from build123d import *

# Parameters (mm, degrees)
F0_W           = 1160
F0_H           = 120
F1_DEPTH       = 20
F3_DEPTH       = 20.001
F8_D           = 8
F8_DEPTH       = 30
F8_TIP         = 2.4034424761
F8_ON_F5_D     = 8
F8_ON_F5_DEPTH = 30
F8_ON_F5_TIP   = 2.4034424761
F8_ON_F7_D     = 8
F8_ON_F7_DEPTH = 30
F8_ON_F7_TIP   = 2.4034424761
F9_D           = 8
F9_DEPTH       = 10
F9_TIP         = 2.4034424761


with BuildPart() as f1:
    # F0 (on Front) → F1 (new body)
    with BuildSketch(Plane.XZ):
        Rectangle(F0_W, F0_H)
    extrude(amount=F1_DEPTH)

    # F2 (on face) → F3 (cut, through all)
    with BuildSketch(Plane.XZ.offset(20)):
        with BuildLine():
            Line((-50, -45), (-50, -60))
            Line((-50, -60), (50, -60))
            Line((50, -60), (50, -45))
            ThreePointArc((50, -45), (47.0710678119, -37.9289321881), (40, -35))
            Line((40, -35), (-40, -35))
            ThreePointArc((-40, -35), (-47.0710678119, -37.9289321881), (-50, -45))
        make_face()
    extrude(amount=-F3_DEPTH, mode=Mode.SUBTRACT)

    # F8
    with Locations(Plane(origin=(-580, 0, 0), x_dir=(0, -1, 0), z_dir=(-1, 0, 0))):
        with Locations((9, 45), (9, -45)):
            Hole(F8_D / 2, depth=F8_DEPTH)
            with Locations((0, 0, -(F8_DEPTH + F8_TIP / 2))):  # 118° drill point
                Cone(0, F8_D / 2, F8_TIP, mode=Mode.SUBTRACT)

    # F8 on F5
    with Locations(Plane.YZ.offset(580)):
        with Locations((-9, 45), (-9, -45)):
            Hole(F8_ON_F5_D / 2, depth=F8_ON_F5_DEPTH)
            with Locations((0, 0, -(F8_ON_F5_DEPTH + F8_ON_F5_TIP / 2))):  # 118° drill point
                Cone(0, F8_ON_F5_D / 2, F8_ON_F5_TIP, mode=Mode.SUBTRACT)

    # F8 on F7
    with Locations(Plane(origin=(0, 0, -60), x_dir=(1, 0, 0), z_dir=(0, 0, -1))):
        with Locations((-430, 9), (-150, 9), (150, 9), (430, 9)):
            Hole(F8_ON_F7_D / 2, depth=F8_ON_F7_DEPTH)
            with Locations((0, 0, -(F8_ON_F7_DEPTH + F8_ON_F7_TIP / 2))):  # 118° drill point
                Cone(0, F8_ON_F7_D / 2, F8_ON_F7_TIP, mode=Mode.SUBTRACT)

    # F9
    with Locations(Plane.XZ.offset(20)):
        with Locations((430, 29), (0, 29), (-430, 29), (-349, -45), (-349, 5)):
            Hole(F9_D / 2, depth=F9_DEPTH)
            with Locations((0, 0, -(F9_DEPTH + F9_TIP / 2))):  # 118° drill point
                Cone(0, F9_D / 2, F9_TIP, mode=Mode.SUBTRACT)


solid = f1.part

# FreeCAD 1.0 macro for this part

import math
import FreeCAD as App
import Part
import Sketcher
from FreeCAD import Vector
Q = App.Units.Quantity

doc = App.newDocument("Part")
body = doc.addObject("PartDesign::Body", "Body")

sketch1 = doc.addObject("Sketcher::SketchObject", "Sketch")
body.addObject(sketch1)
sketch1.AttachmentSupport = (doc.XZ_Plane, [""])
sketch1.MapMode = "FlatFace"
sketch1.addGeometry(Part.LineSegment(Vector(-580, 60, 0), Vector(-580, -60, 0)), False)
sketch1.addGeometry(Part.LineSegment(Vector(-580, -60, 0), Vector(580, -60, 0)), False)
sketch1.addGeometry(Part.LineSegment(Vector(580, -60, 0), Vector(580, 60, 0)), False)
sketch1.addGeometry(Part.LineSegment(Vector(580, 60, 0), Vector(-580, 60, 0)), False)
sketch1.addConstraint(Sketcher.Constraint("Coincident", 0, 2, 1, 1))
sketch1.addConstraint(Sketcher.Constraint("Coincident", 1, 2, 2, 1))
sketch1.addConstraint(Sketcher.Constraint("Coincident", 2, 2, 3, 1))
sketch1.addConstraint(Sketcher.Constraint("Coincident", 3, 2, 0, 1))
sketch1.addConstraint(Sketcher.Constraint("Vertical", 0))
sketch1.addConstraint(Sketcher.Constraint("Horizontal", 1))
sketch1.addConstraint(Sketcher.Constraint("Vertical", 2))
sketch1.addConstraint(Sketcher.Constraint("Horizontal", 3))
sketch1.addConstraint(Sketcher.Constraint("Symmetric", 0, 2, 2, 2, -1, 1))
sketch1.addConstraint(Sketcher.Constraint("DistanceX", 1, 1, 1, 2, Q("1160 mm")))
sketch1.addConstraint(Sketcher.Constraint("DistanceY", 0, 2, 0, 1, Q("120 mm")))
pad1 = doc.addObject("PartDesign::Pad", "Pad")
body.addObject(pad1)
pad1.Profile = sketch1
pad1.Length = 20

sketch2 = doc.addObject("Sketcher::SketchObject", "Sketch001")
body.addObject(sketch2)
sketch2.AttachmentSupport = (doc.XZ_Plane, [""])
sketch2.MapMode = "FlatFace"
sketch2.AttachmentOffset = App.Placement(Vector(0, 0, 20), App.Rotation())
sketch2.addGeometry(Part.LineSegment(Vector(-50, -45, 0), Vector(-50, -60, 0)), False)
sketch2.addGeometry(Part.LineSegment(Vector(-50, -60, 0), Vector(50, -60, 0)), False)
sketch2.addGeometry(Part.LineSegment(Vector(50, -60, 0), Vector(50, -45, 0)), False)
sketch2.addGeometry(Part.ArcOfCircle(Part.Circle(Vector(40, -45, 0), Vector(0, 0, 1), 10), math.radians(0), math.radians(90)), False)
sketch2.addGeometry(Part.LineSegment(Vector(40, -35, 0), Vector(-40, -35, 0)), False)
sketch2.addGeometry(Part.ArcOfCircle(Part.Circle(Vector(-40, -45, 0), Vector(0, 0, 1), 10), math.radians(90), math.radians(180)), False)
sketch2.addConstraint(Sketcher.Constraint("Coincident", 0, 2, 1, 1))
sketch2.addConstraint(Sketcher.Constraint("Coincident", 1, 2, 2, 1))
sketch2.addConstraint(Sketcher.Constraint("Tangent", 2, 2, 3, 1))
sketch2.addConstraint(Sketcher.Constraint("Tangent", 3, 2, 4, 1))
sketch2.addConstraint(Sketcher.Constraint("Tangent", 4, 2, 5, 1))
sketch2.addConstraint(Sketcher.Constraint("Tangent", 5, 2, 0, 1))
sketch2.addConstraint(Sketcher.Constraint("Vertical", 0))
sketch2.addConstraint(Sketcher.Constraint("Horizontal", 1))
sketch2.addConstraint(Sketcher.Constraint("Vertical", 2))
sketch2.addConstraint(Sketcher.Constraint("Horizontal", 4))
sketch2.addConstraint(Sketcher.Constraint("Equal", 3, 5))
sketch2.addConstraint(Sketcher.Constraint("Radius", 3, Q("10 mm")))
sketch2.addConstraint(Sketcher.Constraint("DistanceX", 1, 1, 1, 2, Q("100 mm")))
sketch2.addConstraint(Sketcher.Constraint("DistanceY", 0, 2, 0, 1, Q("15 mm")))
sketch2.addConstraint(Sketcher.Constraint("DistanceX", -1, 1, 3, 3, Q("40 mm")))
sketch2.addConstraint(Sketcher.Constraint("DistanceY", 3, 3, -1, 1, Q("45 mm")))
pocket1 = doc.addObject("PartDesign::Pocket", "Pocket")
body.addObject(pocket1)
pocket1.Profile = sketch2
pocket1.Type = "ThroughAll"

sketch3 = doc.addObject("Sketcher::SketchObject", "Sketch002")
body.addObject(sketch3)
sketch3.AttachmentSupport = (doc.YZ_Plane, [""])
sketch3.MapMode = "FlatFace"
sketch3.AttachmentOffset = App.Placement(Vector(0, 0, -580), App.Rotation())
sketch3.addGeometry(Part.Circle(Vector(-9, 45, 0), Vector(0, 0, 1), 4), False)
sketch3.addGeometry(Part.Circle(Vector(-9, -45, 0), Vector(0, 0, 1), 4), False)
sketch3.addConstraint(Sketcher.Constraint("Equal", 0, 1))
sketch3.addConstraint(Sketcher.Constraint("Symmetric", 0, 3, 1, 3, -1))
sketch3.addConstraint(Sketcher.Constraint("Diameter", 0, Q("8 mm")))
sketch3.addConstraint(Sketcher.Constraint("DistanceX", 0, 3, -1, 1, Q("9 mm")))
sketch3.addConstraint(Sketcher.Constraint("DistanceY", -1, 1, 0, 3, Q("45 mm")))
doc.recompute()
hole = doc.addObject("PartDesign::Hole", "Hole")
body.addObject(hole)
hole.Profile = sketch3
hole.ThreadType = "None"
hole.Diameter = 8
hole.DepthType = "Dimension"
hole.Depth = 30
hole.DrillPoint = "Angled"
hole.DrillPointAngle = 118
hole.Reversed = True

sketch4 = doc.addObject("Sketcher::SketchObject", "Sketch003")
body.addObject(sketch4)
sketch4.AttachmentSupport = (doc.YZ_Plane, [""])
sketch4.MapMode = "FlatFace"
sketch4.AttachmentOffset = App.Placement(Vector(0, 0, 580), App.Rotation())
sketch4.addGeometry(Part.Circle(Vector(-9, 45, 0), Vector(0, 0, 1), 4), False)
sketch4.addGeometry(Part.Circle(Vector(-9, -45, 0), Vector(0, 0, 1), 4), False)
sketch4.addConstraint(Sketcher.Constraint("Equal", 0, 1))
sketch4.addConstraint(Sketcher.Constraint("Symmetric", 0, 3, 1, 3, -1))
sketch4.addConstraint(Sketcher.Constraint("Diameter", 0, Q("8 mm")))
sketch4.addConstraint(Sketcher.Constraint("DistanceX", 0, 3, -1, 1, Q("9 mm")))
sketch4.addConstraint(Sketcher.Constraint("DistanceY", -1, 1, 0, 3, Q("45 mm")))
doc.recompute()
hole2 = doc.addObject("PartDesign::Hole", "Hole001")
body.addObject(hole2)
hole2.Profile = sketch4
hole2.ThreadType = "None"
hole2.Diameter = 8
hole2.DepthType = "Dimension"
hole2.Depth = 30
hole2.DrillPoint = "Angled"
hole2.DrillPointAngle = 118

sketch5 = doc.addObject("Sketcher::SketchObject", "Sketch004")
body.addObject(sketch5)
sketch5.AttachmentSupport = (doc.XY_Plane, [""])
sketch5.MapMode = "FlatFace"
sketch5.AttachmentOffset = App.Placement(Vector(0, 0, -60), App.Rotation())
sketch5.addGeometry(Part.Circle(Vector(-430, -9, 0), Vector(0, 0, 1), 4), False)
sketch5.addGeometry(Part.Circle(Vector(-150, -9, 0), Vector(0, 0, 1), 4), False)
sketch5.addGeometry(Part.Circle(Vector(150, -9, 0), Vector(0, 0, 1), 4), False)
sketch5.addGeometry(Part.Circle(Vector(430, -9, 0), Vector(0, 0, 1), 4), False)
sketch5.addConstraint(Sketcher.Constraint("Equal", 0, 1))
sketch5.addConstraint(Sketcher.Constraint("Equal", 1, 2))
sketch5.addConstraint(Sketcher.Constraint("Equal", 2, 3))
sketch5.addConstraint(Sketcher.Constraint("Symmetric", 1, 3, 2, 3, -2))
sketch5.addConstraint(Sketcher.Constraint("Symmetric", 0, 3, 3, 3, -2))
sketch5.addConstraint(Sketcher.Constraint("Horizontal", 0, 3, 1, 3))
sketch5.addConstraint(Sketcher.Constraint("Diameter", 0, Q("8 mm")))
sketch5.addConstraint(Sketcher.Constraint("DistanceX", 0, 3, -1, 1, Q("430 mm")))
sketch5.addConstraint(Sketcher.Constraint("DistanceY", 0, 3, -1, 1, Q("9 mm")))
sketch5.addConstraint(Sketcher.Constraint("DistanceX", 1, 3, -1, 1, Q("150 mm")))
doc.recompute()
hole3 = doc.addObject("PartDesign::Hole", "Hole002")
body.addObject(hole3)
hole3.Profile = sketch5
hole3.ThreadType = "None"
hole3.Diameter = 8
hole3.DepthType = "Dimension"
hole3.Depth = 30
hole3.DrillPoint = "Angled"
hole3.DrillPointAngle = 118
hole3.Reversed = True

sketch6 = doc.addObject("Sketcher::SketchObject", "Sketch005")
body.addObject(sketch6)
sketch6.AttachmentSupport = (doc.XZ_Plane, [""])
sketch6.MapMode = "FlatFace"
sketch6.AttachmentOffset = App.Placement(Vector(0, 0, 20), App.Rotation())
sketch6.addGeometry(Part.Circle(Vector(430, 29, 0), Vector(0, 0, 1), 4), False)
sketch6.addGeometry(Part.Circle(Vector(0, 29, 0), Vector(0, 0, 1), 4), False)
sketch6.addGeometry(Part.Circle(Vector(-430, 29, 0), Vector(0, 0, 1), 4), False)
sketch6.addGeometry(Part.Circle(Vector(-349, -45, 0), Vector(0, 0, 1), 4), False)
sketch6.addGeometry(Part.Circle(Vector(-349, 5, 0), Vector(0, 0, 1), 4), False)
sketch6.addConstraint(Sketcher.Constraint("Equal", 0, 1))
sketch6.addConstraint(Sketcher.Constraint("Equal", 1, 2))
sketch6.addConstraint(Sketcher.Constraint("Equal", 2, 3))
sketch6.addConstraint(Sketcher.Constraint("Equal", 3, 4))
sketch6.addConstraint(Sketcher.Constraint("Symmetric", 0, 3, 2, 3, -2))
sketch6.addConstraint(Sketcher.Constraint("PointOnObject", 1, 3, -2))
sketch6.addConstraint(Sketcher.Constraint("Horizontal", 0, 3, 1, 3))
sketch6.addConstraint(Sketcher.Constraint("Vertical", 3, 3, 4, 3))
sketch6.addConstraint(Sketcher.Constraint("Diameter", 0, Q("8 mm")))
sketch6.addConstraint(Sketcher.Constraint("DistanceX", -1, 1, 0, 3, Q("430 mm")))
sketch6.addConstraint(Sketcher.Constraint("DistanceY", -1, 1, 0, 3, Q("29 mm")))
sketch6.addConstraint(Sketcher.Constraint("DistanceX", 3, 3, -1, 1, Q("349 mm")))
sketch6.addConstraint(Sketcher.Constraint("DistanceY", 3, 3, -1, 1, Q("45 mm")))
sketch6.addConstraint(Sketcher.Constraint("DistanceY", -1, 1, 4, 3, Q("5 mm")))
doc.recompute()
hole4 = doc.addObject("PartDesign::Hole", "Hole003")
body.addObject(hole4)
hole4.Profile = sketch6
hole4.ThreadType = "None"
hole4.Diameter = 8
hole4.DepthType = "Dimension"
hole4.Depth = 10
hole4.DrillPoint = "Angled"
hole4.DrillPointAngle = 118

doc.recompute()
